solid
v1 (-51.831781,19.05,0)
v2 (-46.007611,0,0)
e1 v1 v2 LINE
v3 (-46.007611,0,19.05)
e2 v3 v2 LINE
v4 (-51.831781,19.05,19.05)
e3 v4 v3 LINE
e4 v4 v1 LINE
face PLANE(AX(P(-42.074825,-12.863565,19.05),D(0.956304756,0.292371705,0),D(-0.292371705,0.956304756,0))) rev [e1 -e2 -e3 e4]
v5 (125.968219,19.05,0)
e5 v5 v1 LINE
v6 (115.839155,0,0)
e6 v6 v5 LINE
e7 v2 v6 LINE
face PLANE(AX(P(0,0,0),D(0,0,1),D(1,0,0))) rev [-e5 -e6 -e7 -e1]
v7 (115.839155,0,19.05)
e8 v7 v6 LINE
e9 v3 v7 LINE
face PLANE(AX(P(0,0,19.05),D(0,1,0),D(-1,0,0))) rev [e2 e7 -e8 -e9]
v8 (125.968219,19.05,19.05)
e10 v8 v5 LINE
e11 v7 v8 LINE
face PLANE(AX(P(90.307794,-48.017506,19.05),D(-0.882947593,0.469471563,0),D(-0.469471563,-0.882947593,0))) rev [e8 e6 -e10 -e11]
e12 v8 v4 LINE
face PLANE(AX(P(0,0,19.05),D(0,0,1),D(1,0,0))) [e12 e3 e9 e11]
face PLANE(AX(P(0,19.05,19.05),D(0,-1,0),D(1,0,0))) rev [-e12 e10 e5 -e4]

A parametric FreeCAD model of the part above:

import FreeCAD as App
import Part
import Sketcher
from FreeCAD import Vector
Q = App.Units.Quantity


def add_polygon(sketch, points):
    """Adds a closed chain of lines whose ends are joined by coincident constraints."""
    first, n = sketch.GeometryCount, len(points)
    for a, b in zip(points, points[1:] + points[:1]):
        sketch.addGeometry(Part.LineSegment(App.Vector(*a, 0), App.Vector(*b, 0)), False)
    for i in range(n):
        sketch.addConstraint(Sketcher.Constraint("Coincident", first + i, 2, first + (i + 1) % n, 1))

doc = App.newDocument("Part")
body = doc.addObject("PartDesign::Body", "Body")

sketch1 = doc.addObject("Sketcher::SketchObject", "Sketch")
body.addObject(sketch1)
sketch1.AttachmentSupport = (doc.XY_Plane, [""])
sketch1.MapMode = "FlatFace"
add_polygon(sketch1, [(-52, 19), (-49, 10), (-46, 0), (116, 0), (121, 10), (126, 19)])
sketch1.addConstraint([
    Sketcher.Constraint("Horizontal", 2),
    Sketcher.Constraint("Horizontal", 5),
    Sketcher.Constraint("PointOnObject", 1, 2, -1),
    Sketcher.Constraint("Parallel", 0, 1),
    Sketcher.Constraint("Parallel", 3, 4),
    Sketcher.Constraint("Horizontal", 0, 2, 3, 2),
    Sketcher.Constraint("Equal", 0, 1),
    Sketcher.Constraint("DistanceX", 5, 2, 5, 1, Q("7 in")),
    Sketcher.Constraint("Angle", 0, Q("-73 deg")),
    Sketcher.Constraint("Angle", 3, Q("62 deg")),
    Sketcher.Constraint("DistanceY", -1, 1, 4, 2, Q("0.75 in")),
    Sketcher.Constraint("DistanceX", 1, 2, -1, 1, Q("46.007611 mm")),
])
pad1 = doc.addObject("PartDesign::Pad", "Pad")
body.addObject(pad1)
pad1.Profile = sketch1
pad1.Length = Q("0.75 in")

doc.recompute()
